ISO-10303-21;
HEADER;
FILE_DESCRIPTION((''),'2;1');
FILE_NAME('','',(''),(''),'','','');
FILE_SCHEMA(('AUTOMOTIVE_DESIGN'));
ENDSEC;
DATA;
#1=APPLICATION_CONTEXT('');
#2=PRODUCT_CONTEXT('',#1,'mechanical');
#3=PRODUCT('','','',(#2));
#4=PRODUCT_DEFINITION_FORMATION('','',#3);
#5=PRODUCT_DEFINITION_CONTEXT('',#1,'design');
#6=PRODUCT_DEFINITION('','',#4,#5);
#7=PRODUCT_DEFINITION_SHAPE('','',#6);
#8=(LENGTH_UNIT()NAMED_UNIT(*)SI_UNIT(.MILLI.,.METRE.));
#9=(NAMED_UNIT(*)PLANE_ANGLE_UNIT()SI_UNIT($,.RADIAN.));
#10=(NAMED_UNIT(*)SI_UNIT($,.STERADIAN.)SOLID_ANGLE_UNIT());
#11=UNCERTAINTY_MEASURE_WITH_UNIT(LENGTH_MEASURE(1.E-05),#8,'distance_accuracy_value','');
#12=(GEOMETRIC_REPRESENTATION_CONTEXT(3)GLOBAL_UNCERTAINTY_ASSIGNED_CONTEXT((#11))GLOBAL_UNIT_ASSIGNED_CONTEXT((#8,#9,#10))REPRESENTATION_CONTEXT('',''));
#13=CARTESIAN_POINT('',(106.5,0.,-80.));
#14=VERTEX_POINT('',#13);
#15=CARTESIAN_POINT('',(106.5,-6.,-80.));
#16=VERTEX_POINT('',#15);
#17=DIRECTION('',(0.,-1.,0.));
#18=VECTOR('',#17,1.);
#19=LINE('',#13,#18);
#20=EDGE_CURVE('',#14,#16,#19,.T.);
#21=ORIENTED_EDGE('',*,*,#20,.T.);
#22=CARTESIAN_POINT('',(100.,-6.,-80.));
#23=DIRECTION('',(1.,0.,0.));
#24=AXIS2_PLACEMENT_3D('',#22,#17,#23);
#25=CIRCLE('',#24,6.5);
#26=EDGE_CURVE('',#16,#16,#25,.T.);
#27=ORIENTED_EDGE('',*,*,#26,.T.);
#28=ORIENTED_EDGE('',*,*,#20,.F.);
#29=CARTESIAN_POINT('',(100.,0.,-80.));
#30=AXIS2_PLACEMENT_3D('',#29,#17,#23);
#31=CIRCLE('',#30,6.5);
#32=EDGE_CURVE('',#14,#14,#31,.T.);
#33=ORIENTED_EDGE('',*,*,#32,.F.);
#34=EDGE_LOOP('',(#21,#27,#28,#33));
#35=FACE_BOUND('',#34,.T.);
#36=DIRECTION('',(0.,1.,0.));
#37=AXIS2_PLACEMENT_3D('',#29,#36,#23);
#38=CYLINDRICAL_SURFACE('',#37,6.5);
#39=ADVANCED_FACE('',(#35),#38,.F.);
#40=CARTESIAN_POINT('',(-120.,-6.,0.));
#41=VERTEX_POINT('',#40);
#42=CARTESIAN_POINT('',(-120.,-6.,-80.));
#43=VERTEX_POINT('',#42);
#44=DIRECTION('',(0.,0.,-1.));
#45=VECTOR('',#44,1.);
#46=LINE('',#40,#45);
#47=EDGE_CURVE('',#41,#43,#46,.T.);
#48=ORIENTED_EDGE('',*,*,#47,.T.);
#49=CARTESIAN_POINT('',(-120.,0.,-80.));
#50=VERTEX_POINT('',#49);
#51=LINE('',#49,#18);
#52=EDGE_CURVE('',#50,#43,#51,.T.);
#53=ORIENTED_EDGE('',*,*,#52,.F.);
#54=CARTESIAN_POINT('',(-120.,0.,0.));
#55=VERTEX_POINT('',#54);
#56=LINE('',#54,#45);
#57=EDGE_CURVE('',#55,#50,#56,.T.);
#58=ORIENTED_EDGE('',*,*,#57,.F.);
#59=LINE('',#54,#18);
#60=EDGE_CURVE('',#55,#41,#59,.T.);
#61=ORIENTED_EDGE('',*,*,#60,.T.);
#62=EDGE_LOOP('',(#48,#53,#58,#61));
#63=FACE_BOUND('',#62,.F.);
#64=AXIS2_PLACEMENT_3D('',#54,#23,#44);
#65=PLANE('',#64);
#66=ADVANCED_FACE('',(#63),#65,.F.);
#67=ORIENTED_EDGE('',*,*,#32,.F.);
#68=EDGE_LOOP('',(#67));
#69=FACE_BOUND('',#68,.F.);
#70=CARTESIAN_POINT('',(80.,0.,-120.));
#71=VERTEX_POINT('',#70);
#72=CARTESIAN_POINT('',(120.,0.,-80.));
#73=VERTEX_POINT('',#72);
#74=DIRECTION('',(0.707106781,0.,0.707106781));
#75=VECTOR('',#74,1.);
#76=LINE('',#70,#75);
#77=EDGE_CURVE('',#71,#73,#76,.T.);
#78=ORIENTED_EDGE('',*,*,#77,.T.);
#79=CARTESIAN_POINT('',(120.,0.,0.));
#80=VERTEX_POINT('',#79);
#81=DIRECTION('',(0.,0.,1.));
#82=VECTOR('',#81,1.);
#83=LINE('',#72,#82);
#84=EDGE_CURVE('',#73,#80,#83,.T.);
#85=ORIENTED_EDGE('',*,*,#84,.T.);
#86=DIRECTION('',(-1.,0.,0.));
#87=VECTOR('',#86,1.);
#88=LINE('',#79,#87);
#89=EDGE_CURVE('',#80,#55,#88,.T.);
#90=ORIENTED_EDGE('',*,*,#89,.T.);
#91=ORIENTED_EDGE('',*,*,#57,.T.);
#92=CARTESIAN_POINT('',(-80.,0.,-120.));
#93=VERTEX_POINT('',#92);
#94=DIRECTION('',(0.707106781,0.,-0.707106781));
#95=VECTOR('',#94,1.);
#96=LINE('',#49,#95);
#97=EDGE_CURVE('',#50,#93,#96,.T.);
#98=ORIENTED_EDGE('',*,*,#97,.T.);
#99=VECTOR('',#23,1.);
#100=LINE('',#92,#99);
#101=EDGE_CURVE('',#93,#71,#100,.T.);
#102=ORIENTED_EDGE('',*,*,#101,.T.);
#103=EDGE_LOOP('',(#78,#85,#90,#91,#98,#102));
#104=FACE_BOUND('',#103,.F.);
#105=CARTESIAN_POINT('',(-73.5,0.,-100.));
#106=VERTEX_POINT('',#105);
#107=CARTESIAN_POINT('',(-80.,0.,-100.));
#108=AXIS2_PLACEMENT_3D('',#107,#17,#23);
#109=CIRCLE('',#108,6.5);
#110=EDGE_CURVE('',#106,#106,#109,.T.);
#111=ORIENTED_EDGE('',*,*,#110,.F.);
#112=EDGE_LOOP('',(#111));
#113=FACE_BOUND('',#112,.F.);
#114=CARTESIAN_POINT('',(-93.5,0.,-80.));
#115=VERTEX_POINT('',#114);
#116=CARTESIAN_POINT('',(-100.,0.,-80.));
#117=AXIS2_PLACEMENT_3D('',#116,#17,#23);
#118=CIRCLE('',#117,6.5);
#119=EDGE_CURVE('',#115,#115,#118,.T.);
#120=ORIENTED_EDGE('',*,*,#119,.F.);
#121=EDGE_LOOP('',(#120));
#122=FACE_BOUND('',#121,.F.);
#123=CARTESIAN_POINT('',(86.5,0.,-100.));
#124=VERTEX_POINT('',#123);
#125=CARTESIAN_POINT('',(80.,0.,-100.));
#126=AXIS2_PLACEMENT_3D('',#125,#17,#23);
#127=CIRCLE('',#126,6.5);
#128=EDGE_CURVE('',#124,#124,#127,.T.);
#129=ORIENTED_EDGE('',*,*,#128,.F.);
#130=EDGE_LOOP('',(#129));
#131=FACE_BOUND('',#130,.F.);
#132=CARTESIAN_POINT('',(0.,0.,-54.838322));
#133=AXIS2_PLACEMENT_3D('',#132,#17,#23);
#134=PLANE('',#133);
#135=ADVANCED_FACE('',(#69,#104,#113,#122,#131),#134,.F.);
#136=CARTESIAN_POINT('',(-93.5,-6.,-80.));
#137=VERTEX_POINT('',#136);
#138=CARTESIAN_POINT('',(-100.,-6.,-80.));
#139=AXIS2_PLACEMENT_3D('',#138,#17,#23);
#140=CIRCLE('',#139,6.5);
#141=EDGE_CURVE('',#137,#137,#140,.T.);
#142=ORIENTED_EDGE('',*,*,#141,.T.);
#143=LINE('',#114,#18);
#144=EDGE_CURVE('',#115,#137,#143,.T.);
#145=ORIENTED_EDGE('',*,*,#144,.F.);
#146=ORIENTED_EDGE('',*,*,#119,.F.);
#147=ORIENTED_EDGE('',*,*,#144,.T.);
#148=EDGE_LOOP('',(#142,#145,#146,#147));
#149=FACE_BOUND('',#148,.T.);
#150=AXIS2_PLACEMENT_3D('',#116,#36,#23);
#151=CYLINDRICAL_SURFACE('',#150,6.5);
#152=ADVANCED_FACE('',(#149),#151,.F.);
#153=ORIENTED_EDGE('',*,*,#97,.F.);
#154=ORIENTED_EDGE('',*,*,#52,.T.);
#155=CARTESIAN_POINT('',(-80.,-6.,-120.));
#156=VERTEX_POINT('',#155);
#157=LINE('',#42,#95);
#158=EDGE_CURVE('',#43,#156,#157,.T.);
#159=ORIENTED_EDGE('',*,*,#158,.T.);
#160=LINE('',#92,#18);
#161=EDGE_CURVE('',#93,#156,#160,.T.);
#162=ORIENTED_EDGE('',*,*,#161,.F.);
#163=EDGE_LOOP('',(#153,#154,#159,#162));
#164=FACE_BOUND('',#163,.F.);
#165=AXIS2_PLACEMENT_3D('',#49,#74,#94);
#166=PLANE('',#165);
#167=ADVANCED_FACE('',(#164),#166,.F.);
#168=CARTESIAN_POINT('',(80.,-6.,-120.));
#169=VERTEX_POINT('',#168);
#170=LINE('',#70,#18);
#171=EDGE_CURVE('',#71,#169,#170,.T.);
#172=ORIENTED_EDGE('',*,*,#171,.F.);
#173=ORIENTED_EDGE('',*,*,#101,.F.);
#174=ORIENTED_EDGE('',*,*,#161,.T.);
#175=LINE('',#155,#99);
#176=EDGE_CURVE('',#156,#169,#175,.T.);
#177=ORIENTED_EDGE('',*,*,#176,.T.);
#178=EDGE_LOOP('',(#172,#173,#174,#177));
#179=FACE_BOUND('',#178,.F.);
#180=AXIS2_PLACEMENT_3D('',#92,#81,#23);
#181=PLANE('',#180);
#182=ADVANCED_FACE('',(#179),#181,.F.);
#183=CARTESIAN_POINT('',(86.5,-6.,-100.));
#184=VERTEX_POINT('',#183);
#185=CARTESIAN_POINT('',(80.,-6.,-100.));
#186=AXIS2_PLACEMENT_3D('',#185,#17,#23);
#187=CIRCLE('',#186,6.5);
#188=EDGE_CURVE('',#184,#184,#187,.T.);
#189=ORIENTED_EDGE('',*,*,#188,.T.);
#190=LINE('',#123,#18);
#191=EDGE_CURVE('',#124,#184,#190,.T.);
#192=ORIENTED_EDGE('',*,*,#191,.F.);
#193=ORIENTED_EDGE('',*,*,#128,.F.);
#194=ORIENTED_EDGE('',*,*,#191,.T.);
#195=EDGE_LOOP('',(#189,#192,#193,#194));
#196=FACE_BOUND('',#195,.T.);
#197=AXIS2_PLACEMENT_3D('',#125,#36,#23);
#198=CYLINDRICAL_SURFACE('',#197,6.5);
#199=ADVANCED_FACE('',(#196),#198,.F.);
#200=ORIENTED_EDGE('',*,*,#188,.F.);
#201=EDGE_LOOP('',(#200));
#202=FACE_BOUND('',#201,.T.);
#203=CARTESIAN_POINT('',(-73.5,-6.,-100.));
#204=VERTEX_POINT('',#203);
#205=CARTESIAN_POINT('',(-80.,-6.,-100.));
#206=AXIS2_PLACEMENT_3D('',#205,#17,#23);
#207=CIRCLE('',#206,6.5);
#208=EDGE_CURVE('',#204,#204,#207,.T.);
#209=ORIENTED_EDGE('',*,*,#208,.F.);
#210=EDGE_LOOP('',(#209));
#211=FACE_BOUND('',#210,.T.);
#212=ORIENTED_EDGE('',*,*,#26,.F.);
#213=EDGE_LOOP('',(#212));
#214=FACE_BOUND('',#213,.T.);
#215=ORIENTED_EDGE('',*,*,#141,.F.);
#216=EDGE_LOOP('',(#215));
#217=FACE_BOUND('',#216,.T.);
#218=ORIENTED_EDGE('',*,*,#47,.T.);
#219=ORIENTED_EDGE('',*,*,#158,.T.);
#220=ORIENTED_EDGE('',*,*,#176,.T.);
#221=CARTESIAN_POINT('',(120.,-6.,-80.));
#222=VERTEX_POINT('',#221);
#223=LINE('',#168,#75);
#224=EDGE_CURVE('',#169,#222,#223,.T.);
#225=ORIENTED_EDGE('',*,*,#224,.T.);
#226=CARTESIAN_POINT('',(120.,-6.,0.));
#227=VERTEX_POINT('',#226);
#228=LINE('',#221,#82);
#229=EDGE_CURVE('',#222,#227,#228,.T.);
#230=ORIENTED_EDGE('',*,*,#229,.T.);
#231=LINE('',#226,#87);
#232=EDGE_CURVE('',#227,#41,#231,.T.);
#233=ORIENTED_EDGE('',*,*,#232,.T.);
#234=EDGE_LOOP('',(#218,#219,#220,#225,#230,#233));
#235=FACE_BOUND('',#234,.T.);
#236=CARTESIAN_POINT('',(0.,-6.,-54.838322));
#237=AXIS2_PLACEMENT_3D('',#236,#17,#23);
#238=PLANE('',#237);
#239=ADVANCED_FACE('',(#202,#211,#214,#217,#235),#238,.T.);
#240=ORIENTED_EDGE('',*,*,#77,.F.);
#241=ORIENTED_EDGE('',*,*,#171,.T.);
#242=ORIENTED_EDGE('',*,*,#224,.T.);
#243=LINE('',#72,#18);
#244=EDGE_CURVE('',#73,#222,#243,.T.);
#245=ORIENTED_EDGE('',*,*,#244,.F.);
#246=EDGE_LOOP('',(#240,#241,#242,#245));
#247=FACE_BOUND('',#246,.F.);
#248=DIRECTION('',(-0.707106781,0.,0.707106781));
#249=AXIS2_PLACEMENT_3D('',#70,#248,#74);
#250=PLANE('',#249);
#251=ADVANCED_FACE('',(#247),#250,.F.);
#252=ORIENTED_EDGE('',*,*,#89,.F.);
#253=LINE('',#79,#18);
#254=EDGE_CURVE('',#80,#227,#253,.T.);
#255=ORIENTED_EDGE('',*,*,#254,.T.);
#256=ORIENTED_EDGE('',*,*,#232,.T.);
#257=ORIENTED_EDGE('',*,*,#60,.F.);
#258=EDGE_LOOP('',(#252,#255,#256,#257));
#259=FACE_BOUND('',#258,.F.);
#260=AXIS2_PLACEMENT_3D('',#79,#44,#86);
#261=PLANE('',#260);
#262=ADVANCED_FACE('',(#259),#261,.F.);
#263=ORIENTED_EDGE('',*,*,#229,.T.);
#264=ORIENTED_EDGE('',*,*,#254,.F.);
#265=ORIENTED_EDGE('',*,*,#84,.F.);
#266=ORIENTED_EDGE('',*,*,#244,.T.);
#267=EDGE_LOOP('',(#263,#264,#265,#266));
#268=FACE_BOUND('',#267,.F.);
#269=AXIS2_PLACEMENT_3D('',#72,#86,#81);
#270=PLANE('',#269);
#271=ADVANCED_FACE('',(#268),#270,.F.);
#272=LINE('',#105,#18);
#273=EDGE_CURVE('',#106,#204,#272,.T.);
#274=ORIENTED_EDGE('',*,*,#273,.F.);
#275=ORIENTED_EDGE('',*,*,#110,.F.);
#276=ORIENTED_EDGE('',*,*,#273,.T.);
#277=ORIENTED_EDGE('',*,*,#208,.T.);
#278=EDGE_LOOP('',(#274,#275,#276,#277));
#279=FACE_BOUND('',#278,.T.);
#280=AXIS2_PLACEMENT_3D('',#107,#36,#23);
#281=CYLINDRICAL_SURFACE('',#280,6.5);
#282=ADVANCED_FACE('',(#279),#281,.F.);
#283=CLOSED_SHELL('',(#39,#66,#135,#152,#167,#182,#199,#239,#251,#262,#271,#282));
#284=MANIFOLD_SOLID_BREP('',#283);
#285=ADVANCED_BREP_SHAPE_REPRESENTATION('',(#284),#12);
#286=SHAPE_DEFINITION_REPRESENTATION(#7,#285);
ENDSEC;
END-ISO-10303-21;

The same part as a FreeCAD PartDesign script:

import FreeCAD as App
import Part
import Sketcher

V = App.Vector

doc = App.newDocument("Part")
body = doc.addObject("PartDesign::Body", "Body")

sketch1 = doc.addObject("Sketcher::SketchObject", "Sketch")
body.addObject(sketch1)
sketch1.AttachmentSupport = (doc.XZ_Plane, [""])
sketch1.MapMode = "FlatFace"
sketch1.addGeometry([
    Part.LineSegment(V(120, 0, 0), V(-120, 0, 0)),
    Part.LineSegment(V(-120, 0, 0), V(-120, -80, 0)),
    Part.LineSegment(V(-120, -80, 0), V(-80, -120, 0)),
    Part.LineSegment(V(-80, -120, 0), V(80, -120, 0)),
    Part.LineSegment(V(80, -120, 0), V(120, -80, 0)),
    Part.LineSegment(V(120, -80, 0), V(120, 0, 0)),
    Part.Circle(V(-80, -100, 0), V(0, 0, 1), 6),
    Part.Circle(V(80, -100, 0), V(0, 0, 1), 6),
    Part.Circle(V(-100, -80, 0), V(0, 0, 1), 6),
    Part.Circle(V(100, -80, 0), V(0, 0, 1), 6),
], False)
sketch1.addConstraint([
    Sketcher.Constraint("Coincident", 0, 2, 1, 1),
    Sketcher.Constraint("Coincident", 1, 2, 2, 1),
    Sketcher.Constraint("Coincident", 2, 2, 3, 1),
    Sketcher.Constraint("Coincident", 3, 2, 4, 1),
    Sketcher.Constraint("Coincident", 4, 2, 5, 1),
    Sketcher.Constraint("Coincident", 5, 2, 0, 1),
    Sketcher.Constraint("Horizontal", 0),
    Sketcher.Constraint("Vertical", 1),
    Sketcher.Constraint("Horizontal", 3),
    Sketcher.Constraint("Vertical", 5),
    Sketcher.Constraint("Equal", 6, 7),
    Sketcher.Constraint("Equal", 7, 8),
    Sketcher.Constraint("Equal", 8, 9),
    Sketcher.Constraint("Symmetric", 0, 2, 5, 2, -1, 1),
    Sketcher.Constraint("Symmetric", 6, 3, 7, 3, -2),
    Sketcher.Constraint("Symmetric", 8, 3, 9, 3, -2),
    Sketcher.Constraint("Perpendicular", 2, 4),
    Sketcher.Constraint("Horizontal", 9, 3, 1, 2),
    Sketcher.Constraint("Horizontal", 1, 2, 4, 2),
    Sketcher.Constraint("Vertical", 6, 3, 2, 2),
    Sketcher.Constraint("Vertical", 7, 3, 3, 2),
    Sketcher.Constraint("Diameter", 6, 13.0),
    Sketcher.Constraint("DistanceX", 0, 2, 0, 1, 240.0),
    Sketcher.Constraint("DistanceX", 3, 1, 3, 2, 160.0),
    Sketcher.Constraint("DistanceY", 1, 2, 1, 1, 80.0),
    Sketcher.Constraint("DistanceY", 6, 3, -1, 1, 100.0),
    Sketcher.Constraint("DistanceX", 8, 3, -1, 1, 100.0),
])
pad1 = doc.addObject("PartDesign::Pad", "Pad")
body.addObject(pad1)
pad1.Profile = sketch1
pad1.Length = 6

doc.recompute()
